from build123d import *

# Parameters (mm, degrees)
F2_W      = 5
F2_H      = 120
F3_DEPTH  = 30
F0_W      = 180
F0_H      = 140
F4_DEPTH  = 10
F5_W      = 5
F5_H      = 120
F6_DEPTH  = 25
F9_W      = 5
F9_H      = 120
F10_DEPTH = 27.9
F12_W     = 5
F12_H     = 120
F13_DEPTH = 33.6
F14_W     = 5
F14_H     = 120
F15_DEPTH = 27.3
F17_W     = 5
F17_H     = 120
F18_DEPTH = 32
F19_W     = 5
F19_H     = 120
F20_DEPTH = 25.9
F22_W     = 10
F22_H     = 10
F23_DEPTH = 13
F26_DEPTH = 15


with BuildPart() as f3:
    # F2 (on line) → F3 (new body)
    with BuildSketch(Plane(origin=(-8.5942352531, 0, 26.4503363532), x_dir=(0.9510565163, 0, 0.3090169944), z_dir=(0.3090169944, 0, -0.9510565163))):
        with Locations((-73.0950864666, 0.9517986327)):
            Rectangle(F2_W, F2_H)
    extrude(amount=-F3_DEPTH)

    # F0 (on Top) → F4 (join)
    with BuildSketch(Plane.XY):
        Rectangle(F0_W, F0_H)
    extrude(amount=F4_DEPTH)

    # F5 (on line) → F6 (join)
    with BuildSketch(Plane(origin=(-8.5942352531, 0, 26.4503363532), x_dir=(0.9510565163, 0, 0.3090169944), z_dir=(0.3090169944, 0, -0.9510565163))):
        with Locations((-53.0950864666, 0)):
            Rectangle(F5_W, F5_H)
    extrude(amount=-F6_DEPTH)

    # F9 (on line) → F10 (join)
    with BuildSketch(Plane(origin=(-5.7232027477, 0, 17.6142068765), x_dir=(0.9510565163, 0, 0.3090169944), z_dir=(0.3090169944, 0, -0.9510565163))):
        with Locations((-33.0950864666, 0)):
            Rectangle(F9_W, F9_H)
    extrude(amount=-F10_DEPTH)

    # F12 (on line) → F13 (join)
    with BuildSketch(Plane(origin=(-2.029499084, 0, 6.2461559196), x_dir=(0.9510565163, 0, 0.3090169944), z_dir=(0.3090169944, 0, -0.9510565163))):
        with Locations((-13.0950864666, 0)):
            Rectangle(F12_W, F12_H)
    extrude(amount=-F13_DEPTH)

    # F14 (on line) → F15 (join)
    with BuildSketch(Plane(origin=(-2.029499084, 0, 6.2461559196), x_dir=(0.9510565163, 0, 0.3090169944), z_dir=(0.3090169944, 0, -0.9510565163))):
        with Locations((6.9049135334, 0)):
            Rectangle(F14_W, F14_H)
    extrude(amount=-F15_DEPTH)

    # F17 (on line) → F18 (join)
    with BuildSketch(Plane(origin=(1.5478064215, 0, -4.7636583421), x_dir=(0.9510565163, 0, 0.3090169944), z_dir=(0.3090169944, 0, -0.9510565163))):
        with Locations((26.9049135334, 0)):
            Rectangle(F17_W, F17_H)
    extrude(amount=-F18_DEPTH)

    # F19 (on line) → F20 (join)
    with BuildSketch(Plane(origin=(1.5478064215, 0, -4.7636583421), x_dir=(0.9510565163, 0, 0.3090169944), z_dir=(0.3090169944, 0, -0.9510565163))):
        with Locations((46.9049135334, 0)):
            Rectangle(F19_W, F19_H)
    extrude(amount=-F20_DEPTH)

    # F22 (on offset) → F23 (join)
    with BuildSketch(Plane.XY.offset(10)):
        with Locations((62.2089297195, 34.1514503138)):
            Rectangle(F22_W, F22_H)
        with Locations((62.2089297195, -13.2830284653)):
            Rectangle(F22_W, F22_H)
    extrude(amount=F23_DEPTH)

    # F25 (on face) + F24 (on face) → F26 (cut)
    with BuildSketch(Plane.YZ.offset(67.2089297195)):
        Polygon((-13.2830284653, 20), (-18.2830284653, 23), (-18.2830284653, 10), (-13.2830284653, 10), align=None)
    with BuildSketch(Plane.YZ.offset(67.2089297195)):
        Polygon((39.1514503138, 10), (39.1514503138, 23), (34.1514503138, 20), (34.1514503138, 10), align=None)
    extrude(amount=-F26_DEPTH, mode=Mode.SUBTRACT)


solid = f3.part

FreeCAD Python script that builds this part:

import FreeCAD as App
import Part
import Sketcher
from FreeCAD import Vector
Q = App.Units.Quantity

doc = App.newDocument("Part")
body = doc.addObject("PartDesign::Body", "Body")

# Sketch on an angled plane
sketch1 = doc.addObject("Sketcher::SketchObject", "Sketch")
body.addObject(sketch1)
sketch1.Placement = App.Placement(Vector(-8.594235, 0, 26.450336), App.Rotation(Vector(0.951056516, 0, 0.309016994), Vector(0, -0.999999999, 0), Vector(0.309016994, 0, -0.951056516), "ZXY"))
sketch1.addGeometry([
    Part.LineSegment(Vector(-75.595086, 60.951799, 0), Vector(-75.595086, -59.048201, 0)),
    Part.LineSegment(Vector(-75.595086, -59.048201, 0), Vector(-70.595086, -59.048201, 0)),
    Part.LineSegment(Vector(-70.595086, -59.048201, 0), Vector(-70.595086, 60.951799, 0)),
    Part.LineSegment(Vector(-70.595086, 60.951799, 0), Vector(-75.595086, 60.951799, 0)),
], False)
sketch1.addConstraint([
    Sketcher.Constraint("Coincident", 0, 2, 1, 1),
    Sketcher.Constraint("Coincident", 1, 2, 2, 1),
    Sketcher.Constraint("Coincident", 2, 2, 3, 1),
    Sketcher.Constraint("Coincident", 3, 2, 0, 1),
    Sketcher.Constraint("Vertical", 0),
    Sketcher.Constraint("Horizontal", 1),
    Sketcher.Constraint("Vertical", 2),
    Sketcher.Constraint("Horizontal", 3),
    Sketcher.Constraint("DistanceX", 1, 1, 1, 2, Q("5 mm")),
    Sketcher.Constraint("DistanceY", 0, 2, 0, 1, Q("120 mm")),
    Sketcher.Constraint("DistanceY", 0, 2, -1, 1, Q("59.048201 mm")),
    Sketcher.Constraint("DistanceX", 0, 2, -1, 1, Q("75.595086 mm")),
])
pad1 = doc.addObject("PartDesign::Pad", "Pad")
body.addObject(pad1)
pad1.Profile = sketch1
pad1.Length = 30
pad1.Reversed = True

# Sketch on XY plane
sketch2 = doc.addObject("Sketcher::SketchObject", "Sketch001")
body.addObject(sketch2)
sketch2.AttachmentSupport = (doc.XY_Plane, [""])
sketch2.MapMode = "FlatFace"
sketch2.addGeometry([
    Part.LineSegment(Vector(-90, 70, 0), Vector(-90, -70, 0)),
    Part.LineSegment(Vector(-90, -70, 0), Vector(90, -70, 0)),
    Part.LineSegment(Vector(90, -70, 0), Vector(90, 70, 0)),
    Part.LineSegment(Vector(90, 70, 0), Vector(-90, 70, 0)),
], False)
sketch2.addConstraint([
    Sketcher.Constraint("Coincident", 0, 2, 1, 1),
    Sketcher.Constraint("Coincident", 1, 2, 2, 1),
    Sketcher.Constraint("Coincident", 2, 2, 3, 1),
    Sketcher.Constraint("Coincident", 3, 2, 0, 1),
    Sketcher.Constraint("Vertical", 0),
    Sketcher.Constraint("Horizontal", 1),
    Sketcher.Constraint("Vertical", 2),
    Sketcher.Constraint("Horizontal", 3),
    Sketcher.Constraint("Symmetric", 0, 2, 2, 2, -1, 1),
    Sketcher.Constraint("DistanceX", 1, 1, 1, 2, Q("180 mm")),
    Sketcher.Constraint("DistanceY", 0, 2, 0, 1, Q("140 mm")),
])
pad2 = doc.addObject("PartDesign::Pad", "Pad001")
body.addObject(pad2)
pad2.Profile = sketch2
pad2.Length = 10

# Sketch on an angled plane
sketch3 = doc.addObject("Sketcher::SketchObject", "Sketch002")
body.addObject(sketch3)
sketch3.Placement = App.Placement(Vector(-8.594235, 0, 26.450336), App.Rotation(Vector(0.951056516, 0, 0.309016994), Vector(0, -0.999999999, 0), Vector(0.309016994, 0, -0.951056516), "ZXY"))
sketch3.addGeometry([
    Part.LineSegment(Vector(-55.595086, 60, 0), Vector(-55.595086, -60, 0)),
    Part.LineSegment(Vector(-55.595086, -60, 0), Vector(-50.595086, -60, 0)),
    Part.LineSegment(Vector(-50.595086, -60, 0), Vector(-50.595086, 60, 0)),
    Part.LineSegment(Vector(-50.595086, 60, 0), Vector(-55.595086, 60, 0)),
], False)
sketch3.addConstraint([
    Sketcher.Constraint("Coincident", 0, 2, 1, 1),
    Sketcher.Constraint("Coincident", 1, 2, 2, 1),
    Sketcher.Constraint("Coincident", 2, 2, 3, 1),
    Sketcher.Constraint("Coincident", 3, 2, 0, 1),
    Sketcher.Constraint("Vertical", 0),
    Sketcher.Constraint("Horizontal", 1),
    Sketcher.Constraint("Vertical", 2),
    Sketcher.Constraint("Horizontal", 3),
    Sketcher.Constraint("DistanceX", 1, 1, 1, 2, Q("5 mm")),
    Sketcher.Constraint("DistanceY", 0, 2, 0, 1, Q("120 mm")),
    Sketcher.Constraint("DistanceY", 0, 2, -1, 1, Q("60 mm")),
    Sketcher.Constraint("DistanceX", 0, 2, -1, 1, Q("55.595086 mm")),
])
pad3 = doc.addObject("PartDesign::Pad", "Pad002")
body.addObject(pad3)
pad3.Profile = sketch3
pad3.Length = 25
pad3.Reversed = True

# Sketch on an angled plane
sketch4 = doc.addObject("Sketcher::SketchObject", "Sketch003")
body.addObject(sketch4)
sketch4.Placement = App.Placement(Vector(-5.723203, 0, 17.614207), App.Rotation(Vector(0.951056516, 0, 0.309016994), Vector(0, -0.999999999, 0), Vector(0.309016994, 0, -0.951056516), "ZXY"))
sketch4.addGeometry([
    Part.LineSegment(Vector(-35.595086, 60, 0), Vector(-35.595086, -60, 0)),
    Part.LineSegment(Vector(-35.595086, -60, 0), Vector(-30.595086, -60, 0)),
    Part.LineSegment(Vector(-30.595086, -60, 0), Vector(-30.595086, 60, 0)),
    Part.LineSegment(Vector(-30.595086, 60, 0), Vector(-35.595086, 60, 0)),
], False)
sketch4.addConstraint([
    Sketcher.Constraint("Coincident", 0, 2, 1, 1),
    Sketcher.Constraint("Coincident", 1, 2, 2, 1),
    Sketcher.Constraint("Coincident", 2, 2, 3, 1),
    Sketcher.Constraint("Coincident", 3, 2, 0, 1),
    Sketcher.Constraint("Vertical", 0),
    Sketcher.Constraint("Horizontal", 1),
    Sketcher.Constraint("Vertical", 2),
    Sketcher.Constraint("Horizontal", 3),
    Sketcher.Constraint("DistanceX", 1, 1, 1, 2, Q("5 mm")),
    Sketcher.Constraint("DistanceY", 0, 2, 0, 1, Q("120 mm")),
    Sketcher.Constraint("DistanceY", 0, 2, -1, 1, Q("60 mm")),
    Sketcher.Constraint("DistanceX", 0, 2, -1, 1, Q("35.595086 mm")),
])
pad4 = doc.addObject("PartDesign::Pad", "Pad003")
body.addObject(pad4)
pad4.Profile = sketch4
pad4.Length = 27.9
pad4.Reversed = True

# Sketch on an angled plane
sketch5 = doc.addObject("Sketcher::SketchObject", "Sketch004")
body.addObject(sketch5)
sketch5.Placement = App.Placement(Vector(-2.029499, 0, 6.246156), App.Rotation(Vector(0.951056516, 0, 0.309016994), Vector(0, -0.999999999, 0), Vector(0.309016994, 0, -0.951056516), "ZXY"))
sketch5.addGeometry([
    Part.LineSegment(Vector(-15.595086, 60, 0), Vector(-15.595086, -60, 0)),
    Part.LineSegment(Vector(-15.595086, -60, 0), Vector(-10.595086, -60, 0)),
    Part.LineSegment(Vector(-10.595086, -60, 0), Vector(-10.595086, 60, 0)),
    Part.LineSegment(Vector(-10.595086, 60, 0), Vector(-15.595086, 60, 0)),
], False)
sketch5.addConstraint([
    Sketcher.Constraint("Coincident", 0, 2, 1, 1),
    Sketcher.Constraint("Coincident", 1, 2, 2, 1),
    Sketcher.Constraint("Coincident", 2, 2, 3, 1),
    Sketcher.Constraint("Coincident", 3, 2, 0, 1),
    Sketcher.Constraint("Vertical", 0),
    Sketcher.Constraint("Horizontal", 1),
    Sketcher.Constraint("Vertical", 2),
    Sketcher.Constraint("Horizontal", 3),
    Sketcher.Constraint("DistanceX", 1, 1, 1, 2, Q("5 mm")),
    Sketcher.Constraint("DistanceY", 0, 2, 0, 1, Q("120 mm")),
    Sketcher.Constraint("DistanceY", 0, 2, -1, 1, Q("60 mm")),
    Sketcher.Constraint("DistanceX", 0, 2, -1, 1, Q("15.595086 mm")),
])
pad5 = doc.addObject("PartDesign::Pad", "Pad004")
body.addObject(pad5)
pad5.Profile = sketch5
pad5.Length = 33.6
pad5.Reversed = True

# Sketch on an angled plane
sketch6 = doc.addObject("Sketcher::SketchObject", "Sketch005")
body.addObject(sketch6)
sketch6.Placement = App.Placement(Vector(-2.029499, 0, 6.246156), App.Rotation(Vector(0.951056516, 0, 0.309016994), Vector(0, -0.999999999, 0), Vector(0.309016994, 0, -0.951056516), "ZXY"))
sketch6.addGeometry([
    Part.LineSegment(Vector(4.404914, 60, 0), Vector(4.404914, -60, 0)),
    Part.LineSegment(Vector(4.404914, -60, 0), Vector(9.404914, -60, 0)),
    Part.LineSegment(Vector(9.404914, -60, 0), Vector(9.404914, 60, 0)),
    Part.LineSegment(Vector(9.404914, 60, 0), Vector(4.404914, 60, 0)),
], False)
sketch6.addConstraint([
    Sketcher.Constraint("Coincident", 0, 2, 1, 1),
    Sketcher.Constraint("Coincident", 1, 2, 2, 1),
    Sketcher.Constraint("Coincident", 2, 2, 3, 1),
    Sketcher.Constraint("Coincident", 3, 2, 0, 1),
    Sketcher.Constraint("Vertical", 0),
    Sketcher.Constraint("Horizontal", 1),
    Sketcher.Constraint("Vertical", 2),
    Sketcher.Constraint("Horizontal", 3),
    Sketcher.Constraint("DistanceX", 1, 1, 1, 2, Q("5 mm")),
    Sketcher.Constraint("DistanceY", 0, 2, 0, 1, Q("120 mm")),
    Sketcher.Constraint("DistanceY", 0, 2, -1, 1, Q("60 mm")),
    Sketcher.Constraint("DistanceX", -1, 1, 0, 2, Q("4.404914 mm")),
])
pad6 = doc.addObject("PartDesign::Pad", "Pad005")
body.addObject(pad6)
pad6.Profile = sketch6
pad6.Length = 27.3
pad6.Reversed = True

# Sketch on an angled plane
sketch7 = doc.addObject("Sketcher::SketchObject", "Sketch006")
body.addObject(sketch7)
sketch7.Placement = App.Placement(Vector(1.547806, 0, -4.763658), App.Rotation(Vector(0.951056516, 0, 0.309016994), Vector(0, -0.999999999, 0), Vector(0.309016994, 0, -0.951056516), "ZXY"))
sketch7.addGeometry([
    Part.LineSegment(Vector(24.404914, 60, 0), Vector(24.404914, -60, 0)),
    Part.LineSegment(Vector(24.404914, -60, 0), Vector(29.404914, -60, 0)),
    Part.LineSegment(Vector(29.404914, -60, 0), Vector(29.404914, 60, 0)),
    Part.LineSegment(Vector(29.404914, 60, 0), Vector(24.404914, 60, 0)),
], False)
sketch7.addConstraint([
    Sketcher.Constraint("Coincident", 0, 2, 1, 1),
    Sketcher.Constraint("Coincident", 1, 2, 2, 1),
    Sketcher.Constraint("Coincident", 2, 2, 3, 1),
    Sketcher.Constraint("Coincident", 3, 2, 0, 1),
    Sketcher.Constraint("Vertical", 0),
    Sketcher.Constraint("Horizontal", 1),
    Sketcher.Constraint("Vertical", 2),
    Sketcher.Constraint("Horizontal", 3),
    Sketcher.Constraint("DistanceX", 1, 1, 1, 2, Q("5 mm")),
    Sketcher.Constraint("DistanceY", 0, 2, 0, 1, Q("120 mm")),
    Sketcher.Constraint("DistanceY", 0, 2, -1, 1, Q("60 mm")),
    Sketcher.Constraint("DistanceX", -1, 1, 0, 2, Q("24.404914 mm")),
])
pad7 = doc.addObject("PartDesign::Pad", "Pad006")
body.addObject(pad7)
pad7.Profile = sketch7
pad7.Length = 32
pad7.Reversed = True

# Sketch on an angled plane
sketch8 = doc.addObject("Sketcher::SketchObject", "Sketch007")
body.addObject(sketch8)
sketch8.Placement = App.Placement(Vector(1.547806, 0, -4.763658), App.Rotation(Vector(0.951056516, 0, 0.309016994), Vector(0, -0.999999999, 0), Vector(0.309016994, 0, -0.951056516), "ZXY"))
sketch8.addGeometry([
    Part.LineSegment(Vector(44.404913, 60, 0), Vector(44.404913, -60, 0)),
    Part.LineSegment(Vector(44.404913, -60, 0), Vector(49.404913, -60, 0)),
    Part.LineSegment(Vector(49.404913, -60, 0), Vector(49.404913, 60, 0)),
    Part.LineSegment(Vector(49.404913, 60, 0), Vector(44.404913, 60, 0)),
], False)
sketch8.addConstraint([
    Sketcher.Constraint("Coincident", 0, 2, 1, 1),
    Sketcher.Constraint("Coincident", 1, 2, 2, 1),
    Sketcher.Constraint("Coincident", 2, 2, 3, 1),
    Sketcher.Constraint("Coincident", 3, 2, 0, 1),
    Sketcher.Constraint("Vertical", 0),
    Sketcher.Constraint("Horizontal", 1),
    Sketcher.Constraint("Vertical", 2),
    Sketcher.Constraint("Horizontal", 3),
    Sketcher.Constraint("DistanceX", 1, 1, 1, 2, Q("5 mm")),
    Sketcher.Constraint("DistanceY", 0, 2, 0, 1, Q("120 mm")),
    Sketcher.Constraint("DistanceY", 0, 2, -1, 1, Q("60 mm")),
    Sketcher.Constraint("DistanceX", -1, 1, 0, 2, Q("44.404913 mm")),
])
pad8 = doc.addObject("PartDesign::Pad", "Pad007")
body.addObject(pad8)
pad8.Profile = sketch8
pad8.Length = 25.9
pad8.Reversed = True

# Sketch on XY plane
sketch9 = doc.addObject("Sketcher::SketchObject", "Sketch008")
body.addObject(sketch9)
sketch9.AttachmentSupport = (doc.XY_Plane, [""])
sketch9.MapMode = "FlatFace"
sketch9.AttachmentOffset = App.Placement(Vector(0, 0, 10), App.Rotation())
sketch9.addGeometry([
    Part.LineSegment(Vector(57.20893, 39.15145, 0), Vector(57.20893, 29.15145, 0)),  # 0
    Part.LineSegment(Vector(57.20893, 29.15145, 0), Vector(67.20893, 29.15145, 0)),  # 1
    Part.LineSegment(Vector(67.20893, 29.15145, 0), Vector(67.20893, 39.15145, 0)),  # 2
    Part.LineSegment(Vector(67.20893, 39.15145, 0), Vector(57.20893, 39.15145, 0)),  # 3
    Part.LineSegment(Vector(57.20893, -8.283028, 0), Vector(57.20893, -18.283028, 0)),  # 4
    Part.LineSegment(Vector(57.20893, -18.283028, 0), Vector(67.20893, -18.283028, 0)),  # 5
    Part.LineSegment(Vector(67.20893, -18.283028, 0), Vector(67.20893, -8.283028, 0)),  # 6
    Part.LineSegment(Vector(67.20893, -8.283028, 0), Vector(57.20893, -8.283028, 0)),  # 7
], False)
sketch9.addConstraint([
    Sketcher.Constraint("Coincident", 0, 2, 1, 1),
    Sketcher.Constraint("Coincident", 1, 2, 2, 1),
    Sketcher.Constraint("Coincident", 2, 2, 3, 1),
    Sketcher.Constraint("Coincident", 3, 2, 0, 1),
    Sketcher.Constraint("Coincident", 4, 2, 5, 1),
    Sketcher.Constraint("Coincident", 5, 2, 6, 1),
    Sketcher.Constraint("Coincident", 6, 2, 7, 1),
    Sketcher.Constraint("Coincident", 7, 2, 4, 1),
    Sketcher.Constraint("Vertical", 0),
    Sketcher.Constraint("Horizontal", 1),
    Sketcher.Constraint("Vertical", 2),
    Sketcher.Constraint("Horizontal", 3),
    Sketcher.Constraint("Vertical", 4),
    Sketcher.Constraint("Horizontal", 5),
    Sketcher.Constraint("Vertical", 6),
    Sketcher.Constraint("Horizontal", 7),
    Sketcher.Constraint("Vertical", 3, 2, 4, 2),
    Sketcher.Constraint("Vertical", 2, 2, 5, 2),
    Sketcher.Constraint("Equal", 7, 0),
    Sketcher.Constraint("Equal", 2, 4),
    Sketcher.Constraint("DistanceX", 1, 1, 1, 2, Q("10 mm")),
    Sketcher.Constraint("DistanceX", -1, 1, 0, 2, Q("57.20893 mm")),
    Sketcher.Constraint("DistanceY", -1, 1, 0, 2, Q("29.15145 mm")),
    Sketcher.Constraint("DistanceY", 4, 2, -1, 1, Q("18.283028 mm")),
])
pad9 = doc.addObject("PartDesign::Pad", "Pad008")
body.addObject(pad9)
pad9.Profile = sketch9
pad9.Length = 13

# Sketch on YZ plane
sketch10 = doc.addObject("Sketcher::SketchObject", "Sketch009")
body.addObject(sketch10)
sketch10.AttachmentSupport = (doc.YZ_Plane, [""])
sketch10.MapMode = "FlatFace"
sketch10.AttachmentOffset = App.Placement(Vector(0, 0, 67.20893), App.Rotation())
sketch10.addGeometry([
    Part.LineSegment(Vector(-13.283028, 20, 0), Vector(-18.283028, 23, 0)),  # 0
    Part.LineSegment(Vector(-18.283028, 23, 0), Vector(-18.283028, 10, 0)),  # 1
    Part.LineSegment(Vector(-18.283028, 10, 0), Vector(-13.283028, 10, 0)),  # 2
    Part.LineSegment(Vector(-13.283028, 10, 0), Vector(-13.283028, 20, 0)),  # 3
    Part.LineSegment(Vector(39.15145, 10, 0), Vector(39.15145, 23, 0)),  # 4
    Part.LineSegment(Vector(39.15145, 23, 0), Vector(34.15145, 20, 0)),  # 5
    Part.LineSegment(Vector(34.15145, 20, 0), Vector(34.15145, 10, 0)),  # 6
    Part.LineSegment(Vector(34.15145, 10, 0), Vector(39.15145, 10, 0)),  # 7
], False)
sketch10.addConstraint([
    Sketcher.Constraint("Coincident", 0, 2, 1, 1),
    Sketcher.Constraint("Coincident", 1, 2, 2, 1),
    Sketcher.Constraint("Coincident", 2, 2, 3, 1),
    Sketcher.Constraint("Coincident", 3, 2, 0, 1),
    Sketcher.Constraint("Coincident", 4, 2, 5, 1),
    Sketcher.Constraint("Coincident", 5, 2, 6, 1),
    Sketcher.Constraint("Coincident", 6, 2, 7, 1),
    Sketcher.Constraint("Coincident", 7, 2, 4, 1),
    Sketcher.Constraint("Vertical", 1),
    Sketcher.Constraint("Horizontal", 2),
    Sketcher.Constraint("Vertical", 3),
    Sketcher.Constraint("Vertical", 4),
    Sketcher.Constraint("Vertical", 6),
    Sketcher.Constraint("Horizontal", 7),
    Sketcher.Constraint("Horizontal", 0, 2, 4, 2),
    Sketcher.Constraint("Horizontal", 3, 2, 5, 2),
    Sketcher.Constraint("Horizontal", 2, 2, 6, 2),
    Sketcher.Constraint("Equal", 2, 7),
    Sketcher.Constraint("DistanceX", 2, 1, 2, 2, Q("5 mm")),
    Sketcher.Constraint("DistanceY", 1, 2, 1, 1, Q("13 mm")),
    Sketcher.Constraint("DistanceY", 3, 1, 3, 2, Q("10 mm")),
    Sketcher.Constraint("DistanceY", -1, 1, 0, 2, Q("23 mm")),
    Sketcher.Constraint("DistanceX", 0, 2, -1, 1, Q("18.283028 mm")),
    Sketcher.Constraint("DistanceX", -1, 1, 4, 2, Q("39.15145 mm")),
])
pocket1 = doc.addObject("PartDesign::Pocket", "Pocket")
body.addObject(pocket1)
pocket1.Profile = sketch10
pocket1.Length = 15

doc.recompute()
